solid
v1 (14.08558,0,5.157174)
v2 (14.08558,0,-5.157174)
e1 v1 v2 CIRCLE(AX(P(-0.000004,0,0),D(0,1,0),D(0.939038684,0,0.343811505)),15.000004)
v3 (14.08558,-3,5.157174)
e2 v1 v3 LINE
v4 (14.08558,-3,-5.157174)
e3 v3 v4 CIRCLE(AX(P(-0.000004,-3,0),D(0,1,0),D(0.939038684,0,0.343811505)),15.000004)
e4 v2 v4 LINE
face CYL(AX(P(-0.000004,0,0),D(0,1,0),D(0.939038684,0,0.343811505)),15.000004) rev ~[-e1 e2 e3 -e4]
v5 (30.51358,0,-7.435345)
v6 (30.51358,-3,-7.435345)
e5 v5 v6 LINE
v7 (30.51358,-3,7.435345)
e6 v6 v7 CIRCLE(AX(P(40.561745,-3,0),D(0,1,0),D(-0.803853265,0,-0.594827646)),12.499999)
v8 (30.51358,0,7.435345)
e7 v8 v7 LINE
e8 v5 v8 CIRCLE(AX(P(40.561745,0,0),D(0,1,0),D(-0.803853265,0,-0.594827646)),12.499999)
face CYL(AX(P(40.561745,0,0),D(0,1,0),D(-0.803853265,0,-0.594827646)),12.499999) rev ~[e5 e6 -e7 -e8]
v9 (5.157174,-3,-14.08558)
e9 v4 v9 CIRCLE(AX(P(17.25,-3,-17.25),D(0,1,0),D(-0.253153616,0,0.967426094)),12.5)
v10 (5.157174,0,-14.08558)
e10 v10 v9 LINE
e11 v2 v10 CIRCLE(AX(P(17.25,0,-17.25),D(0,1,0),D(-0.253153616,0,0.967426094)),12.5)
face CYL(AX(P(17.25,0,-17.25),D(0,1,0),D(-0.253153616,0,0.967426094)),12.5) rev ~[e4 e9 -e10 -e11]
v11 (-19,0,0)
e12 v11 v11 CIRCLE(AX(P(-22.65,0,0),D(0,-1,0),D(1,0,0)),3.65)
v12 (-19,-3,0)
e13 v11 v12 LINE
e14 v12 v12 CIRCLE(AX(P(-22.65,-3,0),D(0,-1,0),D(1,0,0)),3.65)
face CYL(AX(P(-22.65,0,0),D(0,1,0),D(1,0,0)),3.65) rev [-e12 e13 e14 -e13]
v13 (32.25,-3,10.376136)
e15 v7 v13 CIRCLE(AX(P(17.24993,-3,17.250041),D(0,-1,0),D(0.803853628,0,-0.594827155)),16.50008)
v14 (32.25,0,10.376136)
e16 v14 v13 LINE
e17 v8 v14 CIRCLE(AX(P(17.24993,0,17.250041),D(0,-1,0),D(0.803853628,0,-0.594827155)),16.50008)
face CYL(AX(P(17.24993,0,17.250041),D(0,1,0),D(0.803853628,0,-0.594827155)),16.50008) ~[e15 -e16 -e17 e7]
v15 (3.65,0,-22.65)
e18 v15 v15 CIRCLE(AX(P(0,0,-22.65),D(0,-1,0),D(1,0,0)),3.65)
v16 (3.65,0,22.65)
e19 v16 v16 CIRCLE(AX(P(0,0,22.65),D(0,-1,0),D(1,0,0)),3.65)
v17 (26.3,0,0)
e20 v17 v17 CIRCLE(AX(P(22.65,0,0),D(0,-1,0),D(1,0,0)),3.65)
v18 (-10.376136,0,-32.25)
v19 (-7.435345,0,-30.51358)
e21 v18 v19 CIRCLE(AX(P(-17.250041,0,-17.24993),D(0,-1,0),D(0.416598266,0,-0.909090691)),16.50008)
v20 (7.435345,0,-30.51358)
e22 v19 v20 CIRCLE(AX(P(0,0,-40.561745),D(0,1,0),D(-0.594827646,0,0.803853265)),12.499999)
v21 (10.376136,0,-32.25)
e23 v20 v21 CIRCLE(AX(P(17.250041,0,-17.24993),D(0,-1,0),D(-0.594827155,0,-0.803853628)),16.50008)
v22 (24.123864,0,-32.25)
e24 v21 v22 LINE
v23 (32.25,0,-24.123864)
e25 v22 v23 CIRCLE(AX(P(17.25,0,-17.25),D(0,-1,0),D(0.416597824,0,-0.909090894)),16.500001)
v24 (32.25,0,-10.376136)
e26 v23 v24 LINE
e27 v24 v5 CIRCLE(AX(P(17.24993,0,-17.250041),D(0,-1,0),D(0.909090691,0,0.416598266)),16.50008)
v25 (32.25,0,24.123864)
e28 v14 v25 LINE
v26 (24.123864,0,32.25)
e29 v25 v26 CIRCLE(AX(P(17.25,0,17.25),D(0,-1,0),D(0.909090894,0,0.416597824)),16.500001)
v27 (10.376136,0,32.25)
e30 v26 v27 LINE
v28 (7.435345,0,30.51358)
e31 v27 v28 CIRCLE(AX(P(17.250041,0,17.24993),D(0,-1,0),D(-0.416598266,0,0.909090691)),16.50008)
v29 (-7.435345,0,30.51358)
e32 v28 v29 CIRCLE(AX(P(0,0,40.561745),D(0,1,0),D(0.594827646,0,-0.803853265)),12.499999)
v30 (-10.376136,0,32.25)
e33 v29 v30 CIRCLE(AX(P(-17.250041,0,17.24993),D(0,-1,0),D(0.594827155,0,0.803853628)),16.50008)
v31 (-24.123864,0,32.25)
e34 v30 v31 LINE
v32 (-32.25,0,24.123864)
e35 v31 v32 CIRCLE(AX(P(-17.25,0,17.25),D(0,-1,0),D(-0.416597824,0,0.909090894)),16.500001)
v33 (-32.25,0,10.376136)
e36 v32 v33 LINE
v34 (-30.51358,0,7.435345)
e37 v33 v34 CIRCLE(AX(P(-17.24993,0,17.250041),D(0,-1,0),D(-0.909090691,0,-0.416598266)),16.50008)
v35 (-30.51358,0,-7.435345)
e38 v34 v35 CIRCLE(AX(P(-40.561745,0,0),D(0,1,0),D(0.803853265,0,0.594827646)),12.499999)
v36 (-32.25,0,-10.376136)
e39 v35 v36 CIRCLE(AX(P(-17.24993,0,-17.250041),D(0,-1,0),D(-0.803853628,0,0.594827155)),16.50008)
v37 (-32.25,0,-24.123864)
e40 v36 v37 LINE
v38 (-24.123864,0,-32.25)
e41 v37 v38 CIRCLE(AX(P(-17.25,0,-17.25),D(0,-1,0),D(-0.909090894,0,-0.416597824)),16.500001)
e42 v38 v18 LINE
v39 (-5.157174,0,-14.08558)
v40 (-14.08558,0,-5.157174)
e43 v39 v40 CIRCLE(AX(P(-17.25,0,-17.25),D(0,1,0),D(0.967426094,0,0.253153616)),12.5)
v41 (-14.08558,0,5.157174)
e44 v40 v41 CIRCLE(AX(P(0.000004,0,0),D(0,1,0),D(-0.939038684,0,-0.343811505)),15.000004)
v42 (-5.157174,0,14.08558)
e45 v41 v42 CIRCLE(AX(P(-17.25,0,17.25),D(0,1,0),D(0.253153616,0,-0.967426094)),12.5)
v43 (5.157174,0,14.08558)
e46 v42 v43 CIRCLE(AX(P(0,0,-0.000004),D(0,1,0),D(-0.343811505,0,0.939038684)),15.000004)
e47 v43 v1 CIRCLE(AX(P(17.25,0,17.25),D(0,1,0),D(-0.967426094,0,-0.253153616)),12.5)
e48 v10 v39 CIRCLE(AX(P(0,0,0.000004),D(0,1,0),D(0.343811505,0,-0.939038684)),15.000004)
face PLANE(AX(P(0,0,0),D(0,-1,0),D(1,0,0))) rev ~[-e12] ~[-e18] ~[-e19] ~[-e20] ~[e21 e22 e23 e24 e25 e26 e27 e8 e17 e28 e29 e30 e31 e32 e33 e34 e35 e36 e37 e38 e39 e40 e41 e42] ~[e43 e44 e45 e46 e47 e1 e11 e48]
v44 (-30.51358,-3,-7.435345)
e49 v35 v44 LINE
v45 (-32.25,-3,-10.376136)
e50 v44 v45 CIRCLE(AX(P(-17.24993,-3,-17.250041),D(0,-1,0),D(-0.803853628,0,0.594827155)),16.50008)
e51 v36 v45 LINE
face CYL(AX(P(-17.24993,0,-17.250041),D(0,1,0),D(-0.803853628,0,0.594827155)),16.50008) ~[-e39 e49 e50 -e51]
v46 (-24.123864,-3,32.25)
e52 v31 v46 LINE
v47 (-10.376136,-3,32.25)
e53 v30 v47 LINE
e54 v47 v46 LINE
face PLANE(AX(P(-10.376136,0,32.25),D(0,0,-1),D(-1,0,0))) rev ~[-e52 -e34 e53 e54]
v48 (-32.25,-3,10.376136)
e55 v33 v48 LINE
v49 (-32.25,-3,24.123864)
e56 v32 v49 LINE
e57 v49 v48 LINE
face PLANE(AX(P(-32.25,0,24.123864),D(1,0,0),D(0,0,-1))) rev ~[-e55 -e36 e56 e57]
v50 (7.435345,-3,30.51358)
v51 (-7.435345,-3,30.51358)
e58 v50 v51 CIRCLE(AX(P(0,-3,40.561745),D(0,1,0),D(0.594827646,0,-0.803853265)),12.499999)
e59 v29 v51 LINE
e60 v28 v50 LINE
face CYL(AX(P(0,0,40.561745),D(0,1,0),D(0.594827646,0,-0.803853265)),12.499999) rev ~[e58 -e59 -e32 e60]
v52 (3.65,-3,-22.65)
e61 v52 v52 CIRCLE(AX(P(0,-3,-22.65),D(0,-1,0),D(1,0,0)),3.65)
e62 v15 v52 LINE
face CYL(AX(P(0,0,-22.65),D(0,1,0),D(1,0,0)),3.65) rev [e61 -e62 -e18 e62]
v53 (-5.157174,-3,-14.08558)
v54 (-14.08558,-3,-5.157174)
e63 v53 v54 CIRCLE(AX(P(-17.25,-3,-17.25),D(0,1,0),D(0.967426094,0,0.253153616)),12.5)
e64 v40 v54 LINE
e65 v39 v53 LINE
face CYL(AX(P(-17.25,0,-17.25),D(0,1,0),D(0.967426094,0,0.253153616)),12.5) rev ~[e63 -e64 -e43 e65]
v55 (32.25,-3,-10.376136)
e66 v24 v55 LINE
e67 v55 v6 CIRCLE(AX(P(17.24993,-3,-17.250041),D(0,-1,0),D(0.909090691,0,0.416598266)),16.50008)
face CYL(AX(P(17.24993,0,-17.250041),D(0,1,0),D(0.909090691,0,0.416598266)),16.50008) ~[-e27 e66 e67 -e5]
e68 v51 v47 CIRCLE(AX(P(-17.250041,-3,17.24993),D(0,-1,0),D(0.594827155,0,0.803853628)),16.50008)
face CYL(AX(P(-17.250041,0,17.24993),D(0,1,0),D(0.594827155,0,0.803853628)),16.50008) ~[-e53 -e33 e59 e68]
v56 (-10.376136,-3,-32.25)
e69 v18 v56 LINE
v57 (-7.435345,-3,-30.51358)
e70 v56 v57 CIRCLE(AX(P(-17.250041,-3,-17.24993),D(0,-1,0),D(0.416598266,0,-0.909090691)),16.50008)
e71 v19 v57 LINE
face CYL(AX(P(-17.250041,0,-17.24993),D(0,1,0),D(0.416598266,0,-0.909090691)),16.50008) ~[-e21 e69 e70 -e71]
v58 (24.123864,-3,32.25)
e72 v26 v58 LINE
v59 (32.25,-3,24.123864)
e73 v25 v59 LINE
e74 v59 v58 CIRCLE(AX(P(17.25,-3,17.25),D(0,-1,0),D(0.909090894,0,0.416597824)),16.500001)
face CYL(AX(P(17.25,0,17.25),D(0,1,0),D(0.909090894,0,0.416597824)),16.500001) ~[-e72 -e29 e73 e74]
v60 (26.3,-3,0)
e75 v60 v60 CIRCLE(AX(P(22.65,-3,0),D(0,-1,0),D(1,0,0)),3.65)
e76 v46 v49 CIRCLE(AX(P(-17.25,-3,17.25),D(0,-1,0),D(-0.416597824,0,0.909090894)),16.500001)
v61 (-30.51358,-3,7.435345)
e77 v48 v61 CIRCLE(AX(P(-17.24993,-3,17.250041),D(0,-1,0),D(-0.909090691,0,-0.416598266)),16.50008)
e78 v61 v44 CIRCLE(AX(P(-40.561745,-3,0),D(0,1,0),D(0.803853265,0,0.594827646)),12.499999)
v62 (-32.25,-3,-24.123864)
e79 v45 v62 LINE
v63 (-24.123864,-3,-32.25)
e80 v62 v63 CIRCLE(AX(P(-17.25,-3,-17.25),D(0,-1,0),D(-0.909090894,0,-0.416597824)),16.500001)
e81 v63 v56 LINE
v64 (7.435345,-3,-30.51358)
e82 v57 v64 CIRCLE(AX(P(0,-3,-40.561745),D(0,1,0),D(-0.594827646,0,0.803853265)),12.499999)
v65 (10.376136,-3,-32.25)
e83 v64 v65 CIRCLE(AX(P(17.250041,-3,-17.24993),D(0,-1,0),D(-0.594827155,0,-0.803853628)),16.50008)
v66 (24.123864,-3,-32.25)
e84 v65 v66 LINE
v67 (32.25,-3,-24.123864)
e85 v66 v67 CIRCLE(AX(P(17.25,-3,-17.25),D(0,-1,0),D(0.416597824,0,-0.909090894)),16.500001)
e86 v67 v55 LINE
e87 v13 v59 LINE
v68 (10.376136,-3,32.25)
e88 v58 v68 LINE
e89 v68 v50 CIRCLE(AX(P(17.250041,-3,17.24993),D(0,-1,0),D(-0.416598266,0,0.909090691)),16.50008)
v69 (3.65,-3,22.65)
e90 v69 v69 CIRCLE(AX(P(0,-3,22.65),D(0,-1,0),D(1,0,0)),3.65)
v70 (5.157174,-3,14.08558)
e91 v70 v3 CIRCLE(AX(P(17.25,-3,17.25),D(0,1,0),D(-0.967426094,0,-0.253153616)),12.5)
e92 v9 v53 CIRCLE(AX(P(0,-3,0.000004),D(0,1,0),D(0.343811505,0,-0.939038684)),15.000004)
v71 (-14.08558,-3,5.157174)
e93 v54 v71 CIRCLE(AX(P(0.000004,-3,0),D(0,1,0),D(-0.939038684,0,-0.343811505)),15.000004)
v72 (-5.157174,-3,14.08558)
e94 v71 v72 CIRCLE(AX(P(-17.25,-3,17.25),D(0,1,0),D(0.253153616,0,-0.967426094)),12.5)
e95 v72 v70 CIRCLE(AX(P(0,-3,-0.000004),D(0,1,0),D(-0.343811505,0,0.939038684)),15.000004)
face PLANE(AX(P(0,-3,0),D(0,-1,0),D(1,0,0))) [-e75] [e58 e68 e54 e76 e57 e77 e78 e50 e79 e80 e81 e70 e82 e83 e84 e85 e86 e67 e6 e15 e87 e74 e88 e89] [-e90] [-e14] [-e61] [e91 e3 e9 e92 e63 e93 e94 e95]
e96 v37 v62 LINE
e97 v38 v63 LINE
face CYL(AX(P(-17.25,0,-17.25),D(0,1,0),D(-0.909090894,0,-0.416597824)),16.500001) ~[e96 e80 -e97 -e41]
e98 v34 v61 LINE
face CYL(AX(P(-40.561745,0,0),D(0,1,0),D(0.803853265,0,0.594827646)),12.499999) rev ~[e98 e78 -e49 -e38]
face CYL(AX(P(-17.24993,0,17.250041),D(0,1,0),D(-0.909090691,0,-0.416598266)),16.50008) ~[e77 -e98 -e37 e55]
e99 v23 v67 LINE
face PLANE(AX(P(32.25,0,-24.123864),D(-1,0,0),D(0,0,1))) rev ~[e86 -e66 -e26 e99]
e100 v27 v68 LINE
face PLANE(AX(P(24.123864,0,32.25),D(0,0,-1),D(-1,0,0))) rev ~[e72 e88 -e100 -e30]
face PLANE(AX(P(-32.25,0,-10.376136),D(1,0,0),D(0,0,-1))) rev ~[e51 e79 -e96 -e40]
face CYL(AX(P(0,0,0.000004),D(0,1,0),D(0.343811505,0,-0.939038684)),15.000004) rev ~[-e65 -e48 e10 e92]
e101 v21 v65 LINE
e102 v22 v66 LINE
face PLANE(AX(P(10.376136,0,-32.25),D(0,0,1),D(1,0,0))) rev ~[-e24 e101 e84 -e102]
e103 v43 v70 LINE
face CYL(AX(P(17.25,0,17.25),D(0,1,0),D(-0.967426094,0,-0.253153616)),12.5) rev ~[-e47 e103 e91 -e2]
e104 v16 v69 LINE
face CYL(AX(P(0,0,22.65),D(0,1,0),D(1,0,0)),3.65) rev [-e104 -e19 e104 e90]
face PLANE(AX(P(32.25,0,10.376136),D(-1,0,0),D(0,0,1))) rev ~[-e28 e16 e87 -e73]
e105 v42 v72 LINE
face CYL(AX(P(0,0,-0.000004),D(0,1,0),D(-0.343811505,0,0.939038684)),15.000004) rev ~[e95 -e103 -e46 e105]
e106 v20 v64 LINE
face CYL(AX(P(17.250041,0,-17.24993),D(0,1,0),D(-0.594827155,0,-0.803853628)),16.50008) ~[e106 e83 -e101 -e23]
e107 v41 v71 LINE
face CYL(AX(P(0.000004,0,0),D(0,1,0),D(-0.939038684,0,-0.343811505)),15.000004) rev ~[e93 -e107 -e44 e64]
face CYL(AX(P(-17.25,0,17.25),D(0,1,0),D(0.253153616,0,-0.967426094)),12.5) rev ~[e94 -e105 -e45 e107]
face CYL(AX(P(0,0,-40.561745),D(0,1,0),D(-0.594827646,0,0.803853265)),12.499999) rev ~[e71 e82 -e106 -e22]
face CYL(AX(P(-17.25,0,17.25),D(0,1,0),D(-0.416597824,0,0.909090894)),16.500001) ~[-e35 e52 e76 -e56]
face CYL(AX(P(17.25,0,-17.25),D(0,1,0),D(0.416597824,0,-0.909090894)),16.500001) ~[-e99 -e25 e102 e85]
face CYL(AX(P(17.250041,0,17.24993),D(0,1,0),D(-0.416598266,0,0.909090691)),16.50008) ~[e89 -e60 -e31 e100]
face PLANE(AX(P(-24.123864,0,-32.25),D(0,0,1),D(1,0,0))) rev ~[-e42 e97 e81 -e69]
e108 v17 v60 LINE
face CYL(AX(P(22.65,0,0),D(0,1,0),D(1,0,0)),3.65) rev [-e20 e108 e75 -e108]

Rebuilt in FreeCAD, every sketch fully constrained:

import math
import FreeCAD as App
import Part
import Sketcher

V = App.Vector

doc = App.newDocument("Part")
body = doc.addObject("PartDesign::Body", "Body")

# Sketch on XZ plane
sketch1 = doc.addObject("Sketcher::SketchObject", "Sketch")
body.addObject(sketch1)
sketch1.AttachmentSupport = (doc.XZ_Plane, [""])
sketch1.MapMode = "FlatFace"
sketch1.addGeometry(Part.ArcOfCircle(Part.Circle(V(0, 40.6, 0), V(0, 0, 1), 12.5), math.radians(-127), math.radians(-53)), False)
sketch1.addGeometry(Part.ArcOfCircle(Part.Circle(V(-17.3, 17.2, 0), V(0, 0, 1), 16.5), math.radians(53.5), math.radians(65.38)), False)
sketch1.addGeometry(Part.LineSegment(V(-10.4, 32.2, 0), V(-24.1, 32.2, 0)), False)
sketch1.addGeometry(Part.ArcOfCircle(Part.Circle(V(-17.2, 17.2, 0), V(0, 0, 1), 16.5), math.radians(115), math.radians(155)), False)
sketch1.addGeometry(Part.LineSegment(V(-32.2, 24.1, 0), V(-32.2, 10.4, 0)), False)
sketch1.addGeometry(Part.ArcOfCircle(Part.Circle(V(-17.2, 17.3, 0), V(0, 0, 1), 16.5), math.radians(-155.38), math.radians(-143.5)), False)
sketch1.addGeometry(Part.ArcOfCircle(Part.Circle(V(-40.6, 0, 0), V(0, 0, 1), 12.5), math.radians(-37), math.radians(37)), False)
sketch1.addGeometry(Part.ArcOfCircle(Part.Circle(V(-17.2, -17.3, 0), V(0, 0, 1), 16.5), math.radians(143.5), math.radians(155.38)), False)
sketch1.addGeometry(Part.LineSegment(V(-32.2, -10.4, 0), V(-32.2, -24.1, 0)), False)
sketch1.addGeometry(Part.ArcOfCircle(Part.Circle(V(-17.2, -17.2, 0), V(0, 0, 1), 16.5), math.radians(-155), math.radians(-115)), False)
sketch1.addGeometry(Part.LineSegment(V(-24.1, -32.2, 0), V(-10.4, -32.2, 0)), False)
sketch1.addGeometry(Part.ArcOfCircle(Part.Circle(V(-17.3, -17.2, 0), V(0, 0, 1), 16.5), math.radians(-65.38), math.radians(-53.5)), False)
sketch1.addGeometry(Part.ArcOfCircle(Part.Circle(V(0, -40.6, 0), V(0, 0, 1), 12.5), math.radians(53), math.radians(127)), False)
sketch1.addGeometry(Part.ArcOfCircle(Part.Circle(V(17.3, -17.2, 0), V(0, 0, 1), 16.5), math.radians(-126.5), math.radians(-114.62)), False)
sketch1.addGeometry(Part.LineSegment(V(10.4, -32.2, 0), V(24.1, -32.2, 0)), False)
sketch1.addGeometry(Part.ArcOfCircle(Part.Circle(V(17.2, -17.2, 0), V(0, 0, 1), 16.5), math.radians(-65), math.radians(-25)), False)
sketch1.addGeometry(Part.LineSegment(V(32.2, -24.1, 0), V(32.2, -10.4, 0)), False)
sketch1.addGeometry(Part.ArcOfCircle(Part.Circle(V(17.2, -17.3, 0), V(0, 0, 1), 16.5), math.radians(24.62), math.radians(36.5)), False)
sketch1.addGeometry(Part.ArcOfCircle(Part.Circle(V(40.6, 0, 0), V(0, 0, 1), 12.5), math.radians(143), math.radians(217)), False)
sketch1.addGeometry(Part.ArcOfCircle(Part.Circle(V(17.2, 17.3, 0), V(0, 0, 1), 16.5), math.radians(-36.5), math.radians(-24.62)), False)
sketch1.addGeometry(Part.LineSegment(V(32.2, 10.4, 0), V(32.2, 24.1, 0)), False)
sketch1.addGeometry(Part.ArcOfCircle(Part.Circle(V(17.2, 17.2, 0), V(0, 0, 1), 16.5), math.radians(25), math.radians(65)), False)
sketch1.addGeometry(Part.LineSegment(V(24.1, 32.2, 0), V(10.4, 32.2, 0)), False)
sketch1.addGeometry(Part.ArcOfCircle(Part.Circle(V(17.3, 17.2, 0), V(0, 0, 1), 16.5), math.radians(114.62), math.radians(126.5)), False)
sketch1.addGeometry(Part.Circle(V(0, -22.6, 0), V(0, 0, 1), 3.6), False)
sketch1.addGeometry(Part.Circle(V(-22.6, 0, 0), V(0, 0, 1), 3.6), False)
sketch1.addGeometry(Part.ArcOfCircle(Part.Circle(V(-17.3, 17.3, 0), V(0, 0, 1), 12.5), math.radians(-15), math.radians(285)), False)
sketch1.addGeometry(Part.ArcOfCircle(Part.Circle(V(0, 0, 0), V(0, 0, 1), 15), math.radians(70), math.radians(110)), False)
sketch1.addGeometry(Part.ArcOfCircle(Part.Circle(V(17.3, 17.3, 0), V(0, 0, 1), 12.5), math.radians(-105), math.radians(195)), False)
sketch1.addGeometry(Part.ArcOfCircle(Part.Circle(V(0, 0, 0), V(0, 0, 1), 15), math.radians(-20), math.radians(20)), False)
sketch1.addGeometry(Part.ArcOfCircle(Part.Circle(V(17.3, -17.3, 0), V(0, 0, 1), 12.5), math.radians(165), math.radians(465)), False)
sketch1.addGeometry(Part.ArcOfCircle(Part.Circle(V(0, 0, 0), V(0, 0, 1), 15), math.radians(-110), math.radians(-70)), False)
sketch1.addGeometry(Part.ArcOfCircle(Part.Circle(V(-17.3, -17.3, 0), V(0, 0, 1), 12.5), math.radians(75), math.radians(375)), False)
sketch1.addGeometry(Part.ArcOfCircle(Part.Circle(V(0, 0, 0), V(0, 0, 1), 15), math.radians(160), math.radians(200)), False)
sketch1.addGeometry(Part.Circle(V(22.6, 0, 0), V(0, 0, 1), 3.6), False)
sketch1.addGeometry(Part.Circle(V(0, 22.6, 0), V(0, 0, 1), 3.6), False)
sketch1.addConstraint(Sketcher.Constraint("Tangent", 0, 1, 1, 1))
sketch1.addConstraint(Sketcher.Constraint("Coincident", 1, 2, 2, 1))
sketch1.addConstraint(Sketcher.Constraint("Coincident", 2, 2, 3, 1))
sketch1.addConstraint(Sketcher.Constraint("Coincident", 3, 2, 4, 1))
sketch1.addConstraint(Sketcher.Constraint("Coincident", 4, 2, 5, 1))
sketch1.addConstraint(Sketcher.Constraint("Tangent", 5, 2, 6, 2))
sketch1.addConstraint(Sketcher.Constraint("Tangent", 6, 1, 7, 1))
sketch1.addConstraint(Sketcher.Constraint("Coincident", 7, 2, 8, 1))
sketch1.addConstraint(Sketcher.Constraint("Coincident", 8, 2, 9, 1))
sketch1.addConstraint(Sketcher.Constraint("Coincident", 9, 2, 10, 1))
sketch1.addConstraint(Sketcher.Constraint("Coincident", 10, 2, 11, 1))
sketch1.addConstraint(Sketcher.Constraint("Tangent", 11, 2, 12, 2))
sketch1.addConstraint(Sketcher.Constraint("Tangent", 12, 1, 13, 1))
sketch1.addConstraint(Sketcher.Constraint("Coincident", 13, 2, 14, 1))
sketch1.addConstraint(Sketcher.Constraint("Coincident", 14, 2, 15, 1))
sketch1.addConstraint(Sketcher.Constraint("Coincident", 15, 2, 16, 1))
sketch1.addConstraint(Sketcher.Constraint("Coincident", 16, 2, 17, 1))
sketch1.addConstraint(Sketcher.Constraint("Tangent", 17, 2, 18, 2))
sketch1.addConstraint(Sketcher.Constraint("Tangent", 18, 1, 19, 1))
sketch1.addConstraint(Sketcher.Constraint("Coincident", 19, 2, 20, 1))
sketch1.addConstraint(Sketcher.Constraint("Coincident", 20, 2, 21, 1))
sketch1.addConstraint(Sketcher.Constraint("Coincident", 21, 2, 22, 1))
sketch1.addConstraint(Sketcher.Constraint("Coincident", 22, 2, 23, 1))
sketch1.addConstraint(Sketcher.Constraint("Tangent", 23, 2, 0, 2))
sketch1.addConstraint(Sketcher.Constraint("Coincident", 26, 1, 27, 2))
sketch1.addConstraint(Sketcher.Constraint("Coincident", 27, 1, 28, 2))
sketch1.addConstraint(Sketcher.Constraint("Coincident", 28, 1, 29, 2))
sketch1.addConstraint(Sketcher.Constraint("Coincident", 29, 1, 30, 2))
sketch1.addConstraint(Sketcher.Constraint("Coincident", 30, 1, 31, 2))
sketch1.addConstraint(Sketcher.Constraint("Coincident", 31, 1, 32, 2))
sketch1.addConstraint(Sketcher.Constraint("Coincident", 32, 1, 33, 2))
sketch1.addConstraint(Sketcher.Constraint("Coincident", 33, 1, 26, 2))
sketch1.addConstraint(Sketcher.Constraint("Horizontal", 2))
sketch1.addConstraint(Sketcher.Constraint("Vertical", 4))
sketch1.addConstraint(Sketcher.Constraint("Vertical", 8))
sketch1.addConstraint(Sketcher.Constraint("Horizontal", 10))
sketch1.addConstraint(Sketcher.Constraint("Horizontal", 14))
sketch1.addConstraint(Sketcher.Constraint("Vertical", 16))
sketch1.addConstraint(Sketcher.Constraint("Vertical", 20))
sketch1.addConstraint(Sketcher.Constraint("Horizontal", 22))
sketch1.addConstraint(Sketcher.Constraint("Coincident", 27, 3, -1, 1))
sketch1.addConstraint(Sketcher.Constraint("Coincident", 29, 3, -1, 1))
sketch1.addConstraint(Sketcher.Constraint("Coincident", 31, 3, -1, 1))
sketch1.addConstraint(Sketcher.Constraint("Coincident", 33, 3, -1, 1))
sketch1.addConstraint(Sketcher.Constraint("Coincident", 26, 3, 3, 3))
sketch1.addConstraint(Sketcher.Constraint("Coincident", 28, 3, 21, 3))
sketch1.addConstraint(Sketcher.Constraint("Coincident", 30, 3, 15, 3))
sketch1.addConstraint(Sketcher.Constraint("Coincident", 32, 3, 9, 3))
sketch1.addConstraint(Sketcher.Constraint("Equal", 1, 5))
sketch1.addConstraint(Sketcher.Constraint("Equal", 0, 6))
sketch1.addConstraint(Sketcher.Constraint("Equal", 5, 7))
sketch1.addConstraint(Sketcher.Constraint("Equal", 3, 9))
sketch1.addConstraint(Sketcher.Constraint("Equal", 7, 11))
sketch1.addConstraint(Sketcher.Constraint("Equal", 6, 12))
sketch1.addConstraint(Sketcher.Constraint("Equal", 11, 13))
sketch1.addConstraint(Sketcher.Constraint("Equal", 9, 15))
sketch1.addConstraint(Sketcher.Constraint("Equal", 13, 17))
sketch1.addConstraint(Sketcher.Constraint("Equal", 12, 18))
sketch1.addConstraint(Sketcher.Constraint("Equal", 17, 19))
sketch1.addConstraint(Sketcher.Constraint("Equal", 15, 21))
sketch1.addConstraint(Sketcher.Constraint("Equal", 19, 23))
sketch1.addConstraint(Sketcher.Constraint("Equal", 24, 25))
sketch1.addConstraint(Sketcher.Constraint("Equal", 18, 26))
sketch1.addConstraint(Sketcher.Constraint("Equal", 26, 28))
sketch1.addConstraint(Sketcher.Constraint("Equal", 27, 29))
sketch1.addConstraint(Sketcher.Constraint("Equal", 28, 30))
sketch1.addConstraint(Sketcher.Constraint("Equal", 29, 31))
sketch1.addConstraint(Sketcher.Constraint("Equal", 30, 32))
sketch1.addConstraint(Sketcher.Constraint("Equal", 31, 33))
sketch1.addConstraint(Sketcher.Constraint("Equal", 25, 34))
sketch1.addConstraint(Sketcher.Constraint("Equal", 34, 35))
sketch1.addConstraint(Sketcher.Constraint("Symmetric", 0, 3, 12, 3, -1, 1))
sketch1.addConstraint(Sketcher.Constraint("Symmetric", 3, 3, 15, 3, -1, 1))
sketch1.addConstraint(Sketcher.Constraint("Symmetric", 5, 3, 17, 3, -1, 1))
sketch1.addConstraint(Sketcher.Constraint("Symmetric", 7, 3, 19, 3, -1, 1))
sketch1.addConstraint(Sketcher.Constraint("Symmetric", 9, 3, 21, 3, -1, 1))
sketch1.addConstraint(Sketcher.Constraint("Symmetric", 25, 3, 34, 3, -1, 1))
sketch1.addConstraint(Sketcher.Constraint("Symmetric", 24, 3, 35, 3, -1, 1))
sketch1.addConstraint(Sketcher.Constraint("Symmetric", 1, 2, 13, 2, -1, 1))
sketch1.addConstraint(Sketcher.Constraint("Symmetric", 10, 2, 22, 2, -1, 1))
sketch1.addConstraint(Sketcher.Constraint("Symmetric", 11, 3, 13, 3, -2))
sketch1.addConstraint(Sketcher.Constraint("Symmetric", 9, 3, 15, 3, -2))
sketch1.addConstraint(Sketcher.Constraint("Symmetric", 7, 3, 17, 3, -2))
sketch1.addConstraint(Sketcher.Constraint("PointOnObject", 24, 3, -2))
sketch1.addConstraint(Sketcher.Constraint("PointOnObject", 25, 3, -1))
sketch1.addConstraint(Sketcher.Constraint("Horizontal", 10, 2, 13, 2))
sketch1.addConstraint(Sketcher.Constraint("Horizontal", 8, 2, 15, 2))
sketch1.addConstraint(Sketcher.Constraint("Horizontal", 4, 2, 19, 2))
sketch1.addConstraint(Sketcher.Constraint("Vertical", 4, 2, 7, 2))
sketch1.addConstraint(Sketcher.Constraint("Equal", 22, 4))
sketch1.addConstraint(Sketcher.Constraint("Diameter", 24, 7.3))
sketch1.addConstraint(Sketcher.Constraint("Radius", 0, 12.499999))
sketch1.addConstraint(Sketcher.Constraint("Radius", 3, 16.500001))
sketch1.addConstraint(Sketcher.Constraint("DistanceY", 26, 3, 1, 2, 15.0))
sketch1.addConstraint(Sketcher.Constraint("DistanceX", 3, 2, 26, 3, 15.0))
sketch1.addConstraint(Sketcher.Constraint("DistanceY", 9, 3, 3, 3, 34.499999))
sketch1.addConstraint(Sketcher.Constraint("DistanceX", 9, 3, 15, 3, 34.499999))
sketch1.addConstraint(Sketcher.Constraint("DistanceY", 24, 3, 9, 3, 5.4))
sketch1.addConstraint(Sketcher.Constraint("DistanceX", 25, 3, 3, 3, 5.4))
sketch1.addConstraint(Sketcher.Constraint("Radius", 1, 16.50008))
sketch1.addConstraint(Sketcher.Constraint("Radius", 27, 15.000004))
sketch1.addConstraint(Sketcher.Constraint("DistanceX", 2, 2, 2, 1, 13.747728))
sketch1.addConstraint(Sketcher.Constraint("DistanceX", 1, 3, -1, 1, 17.250041))
sketch1.addConstraint(Sketcher.Constraint("DistanceX", 5, 3, -1, 1, 17.24993))
pad1 = doc.addObject("PartDesign::Pad", "Pad")
body.addObject(pad1)
pad1.Profile = sketch1
pad1.Length = 3

doc.recompute()
